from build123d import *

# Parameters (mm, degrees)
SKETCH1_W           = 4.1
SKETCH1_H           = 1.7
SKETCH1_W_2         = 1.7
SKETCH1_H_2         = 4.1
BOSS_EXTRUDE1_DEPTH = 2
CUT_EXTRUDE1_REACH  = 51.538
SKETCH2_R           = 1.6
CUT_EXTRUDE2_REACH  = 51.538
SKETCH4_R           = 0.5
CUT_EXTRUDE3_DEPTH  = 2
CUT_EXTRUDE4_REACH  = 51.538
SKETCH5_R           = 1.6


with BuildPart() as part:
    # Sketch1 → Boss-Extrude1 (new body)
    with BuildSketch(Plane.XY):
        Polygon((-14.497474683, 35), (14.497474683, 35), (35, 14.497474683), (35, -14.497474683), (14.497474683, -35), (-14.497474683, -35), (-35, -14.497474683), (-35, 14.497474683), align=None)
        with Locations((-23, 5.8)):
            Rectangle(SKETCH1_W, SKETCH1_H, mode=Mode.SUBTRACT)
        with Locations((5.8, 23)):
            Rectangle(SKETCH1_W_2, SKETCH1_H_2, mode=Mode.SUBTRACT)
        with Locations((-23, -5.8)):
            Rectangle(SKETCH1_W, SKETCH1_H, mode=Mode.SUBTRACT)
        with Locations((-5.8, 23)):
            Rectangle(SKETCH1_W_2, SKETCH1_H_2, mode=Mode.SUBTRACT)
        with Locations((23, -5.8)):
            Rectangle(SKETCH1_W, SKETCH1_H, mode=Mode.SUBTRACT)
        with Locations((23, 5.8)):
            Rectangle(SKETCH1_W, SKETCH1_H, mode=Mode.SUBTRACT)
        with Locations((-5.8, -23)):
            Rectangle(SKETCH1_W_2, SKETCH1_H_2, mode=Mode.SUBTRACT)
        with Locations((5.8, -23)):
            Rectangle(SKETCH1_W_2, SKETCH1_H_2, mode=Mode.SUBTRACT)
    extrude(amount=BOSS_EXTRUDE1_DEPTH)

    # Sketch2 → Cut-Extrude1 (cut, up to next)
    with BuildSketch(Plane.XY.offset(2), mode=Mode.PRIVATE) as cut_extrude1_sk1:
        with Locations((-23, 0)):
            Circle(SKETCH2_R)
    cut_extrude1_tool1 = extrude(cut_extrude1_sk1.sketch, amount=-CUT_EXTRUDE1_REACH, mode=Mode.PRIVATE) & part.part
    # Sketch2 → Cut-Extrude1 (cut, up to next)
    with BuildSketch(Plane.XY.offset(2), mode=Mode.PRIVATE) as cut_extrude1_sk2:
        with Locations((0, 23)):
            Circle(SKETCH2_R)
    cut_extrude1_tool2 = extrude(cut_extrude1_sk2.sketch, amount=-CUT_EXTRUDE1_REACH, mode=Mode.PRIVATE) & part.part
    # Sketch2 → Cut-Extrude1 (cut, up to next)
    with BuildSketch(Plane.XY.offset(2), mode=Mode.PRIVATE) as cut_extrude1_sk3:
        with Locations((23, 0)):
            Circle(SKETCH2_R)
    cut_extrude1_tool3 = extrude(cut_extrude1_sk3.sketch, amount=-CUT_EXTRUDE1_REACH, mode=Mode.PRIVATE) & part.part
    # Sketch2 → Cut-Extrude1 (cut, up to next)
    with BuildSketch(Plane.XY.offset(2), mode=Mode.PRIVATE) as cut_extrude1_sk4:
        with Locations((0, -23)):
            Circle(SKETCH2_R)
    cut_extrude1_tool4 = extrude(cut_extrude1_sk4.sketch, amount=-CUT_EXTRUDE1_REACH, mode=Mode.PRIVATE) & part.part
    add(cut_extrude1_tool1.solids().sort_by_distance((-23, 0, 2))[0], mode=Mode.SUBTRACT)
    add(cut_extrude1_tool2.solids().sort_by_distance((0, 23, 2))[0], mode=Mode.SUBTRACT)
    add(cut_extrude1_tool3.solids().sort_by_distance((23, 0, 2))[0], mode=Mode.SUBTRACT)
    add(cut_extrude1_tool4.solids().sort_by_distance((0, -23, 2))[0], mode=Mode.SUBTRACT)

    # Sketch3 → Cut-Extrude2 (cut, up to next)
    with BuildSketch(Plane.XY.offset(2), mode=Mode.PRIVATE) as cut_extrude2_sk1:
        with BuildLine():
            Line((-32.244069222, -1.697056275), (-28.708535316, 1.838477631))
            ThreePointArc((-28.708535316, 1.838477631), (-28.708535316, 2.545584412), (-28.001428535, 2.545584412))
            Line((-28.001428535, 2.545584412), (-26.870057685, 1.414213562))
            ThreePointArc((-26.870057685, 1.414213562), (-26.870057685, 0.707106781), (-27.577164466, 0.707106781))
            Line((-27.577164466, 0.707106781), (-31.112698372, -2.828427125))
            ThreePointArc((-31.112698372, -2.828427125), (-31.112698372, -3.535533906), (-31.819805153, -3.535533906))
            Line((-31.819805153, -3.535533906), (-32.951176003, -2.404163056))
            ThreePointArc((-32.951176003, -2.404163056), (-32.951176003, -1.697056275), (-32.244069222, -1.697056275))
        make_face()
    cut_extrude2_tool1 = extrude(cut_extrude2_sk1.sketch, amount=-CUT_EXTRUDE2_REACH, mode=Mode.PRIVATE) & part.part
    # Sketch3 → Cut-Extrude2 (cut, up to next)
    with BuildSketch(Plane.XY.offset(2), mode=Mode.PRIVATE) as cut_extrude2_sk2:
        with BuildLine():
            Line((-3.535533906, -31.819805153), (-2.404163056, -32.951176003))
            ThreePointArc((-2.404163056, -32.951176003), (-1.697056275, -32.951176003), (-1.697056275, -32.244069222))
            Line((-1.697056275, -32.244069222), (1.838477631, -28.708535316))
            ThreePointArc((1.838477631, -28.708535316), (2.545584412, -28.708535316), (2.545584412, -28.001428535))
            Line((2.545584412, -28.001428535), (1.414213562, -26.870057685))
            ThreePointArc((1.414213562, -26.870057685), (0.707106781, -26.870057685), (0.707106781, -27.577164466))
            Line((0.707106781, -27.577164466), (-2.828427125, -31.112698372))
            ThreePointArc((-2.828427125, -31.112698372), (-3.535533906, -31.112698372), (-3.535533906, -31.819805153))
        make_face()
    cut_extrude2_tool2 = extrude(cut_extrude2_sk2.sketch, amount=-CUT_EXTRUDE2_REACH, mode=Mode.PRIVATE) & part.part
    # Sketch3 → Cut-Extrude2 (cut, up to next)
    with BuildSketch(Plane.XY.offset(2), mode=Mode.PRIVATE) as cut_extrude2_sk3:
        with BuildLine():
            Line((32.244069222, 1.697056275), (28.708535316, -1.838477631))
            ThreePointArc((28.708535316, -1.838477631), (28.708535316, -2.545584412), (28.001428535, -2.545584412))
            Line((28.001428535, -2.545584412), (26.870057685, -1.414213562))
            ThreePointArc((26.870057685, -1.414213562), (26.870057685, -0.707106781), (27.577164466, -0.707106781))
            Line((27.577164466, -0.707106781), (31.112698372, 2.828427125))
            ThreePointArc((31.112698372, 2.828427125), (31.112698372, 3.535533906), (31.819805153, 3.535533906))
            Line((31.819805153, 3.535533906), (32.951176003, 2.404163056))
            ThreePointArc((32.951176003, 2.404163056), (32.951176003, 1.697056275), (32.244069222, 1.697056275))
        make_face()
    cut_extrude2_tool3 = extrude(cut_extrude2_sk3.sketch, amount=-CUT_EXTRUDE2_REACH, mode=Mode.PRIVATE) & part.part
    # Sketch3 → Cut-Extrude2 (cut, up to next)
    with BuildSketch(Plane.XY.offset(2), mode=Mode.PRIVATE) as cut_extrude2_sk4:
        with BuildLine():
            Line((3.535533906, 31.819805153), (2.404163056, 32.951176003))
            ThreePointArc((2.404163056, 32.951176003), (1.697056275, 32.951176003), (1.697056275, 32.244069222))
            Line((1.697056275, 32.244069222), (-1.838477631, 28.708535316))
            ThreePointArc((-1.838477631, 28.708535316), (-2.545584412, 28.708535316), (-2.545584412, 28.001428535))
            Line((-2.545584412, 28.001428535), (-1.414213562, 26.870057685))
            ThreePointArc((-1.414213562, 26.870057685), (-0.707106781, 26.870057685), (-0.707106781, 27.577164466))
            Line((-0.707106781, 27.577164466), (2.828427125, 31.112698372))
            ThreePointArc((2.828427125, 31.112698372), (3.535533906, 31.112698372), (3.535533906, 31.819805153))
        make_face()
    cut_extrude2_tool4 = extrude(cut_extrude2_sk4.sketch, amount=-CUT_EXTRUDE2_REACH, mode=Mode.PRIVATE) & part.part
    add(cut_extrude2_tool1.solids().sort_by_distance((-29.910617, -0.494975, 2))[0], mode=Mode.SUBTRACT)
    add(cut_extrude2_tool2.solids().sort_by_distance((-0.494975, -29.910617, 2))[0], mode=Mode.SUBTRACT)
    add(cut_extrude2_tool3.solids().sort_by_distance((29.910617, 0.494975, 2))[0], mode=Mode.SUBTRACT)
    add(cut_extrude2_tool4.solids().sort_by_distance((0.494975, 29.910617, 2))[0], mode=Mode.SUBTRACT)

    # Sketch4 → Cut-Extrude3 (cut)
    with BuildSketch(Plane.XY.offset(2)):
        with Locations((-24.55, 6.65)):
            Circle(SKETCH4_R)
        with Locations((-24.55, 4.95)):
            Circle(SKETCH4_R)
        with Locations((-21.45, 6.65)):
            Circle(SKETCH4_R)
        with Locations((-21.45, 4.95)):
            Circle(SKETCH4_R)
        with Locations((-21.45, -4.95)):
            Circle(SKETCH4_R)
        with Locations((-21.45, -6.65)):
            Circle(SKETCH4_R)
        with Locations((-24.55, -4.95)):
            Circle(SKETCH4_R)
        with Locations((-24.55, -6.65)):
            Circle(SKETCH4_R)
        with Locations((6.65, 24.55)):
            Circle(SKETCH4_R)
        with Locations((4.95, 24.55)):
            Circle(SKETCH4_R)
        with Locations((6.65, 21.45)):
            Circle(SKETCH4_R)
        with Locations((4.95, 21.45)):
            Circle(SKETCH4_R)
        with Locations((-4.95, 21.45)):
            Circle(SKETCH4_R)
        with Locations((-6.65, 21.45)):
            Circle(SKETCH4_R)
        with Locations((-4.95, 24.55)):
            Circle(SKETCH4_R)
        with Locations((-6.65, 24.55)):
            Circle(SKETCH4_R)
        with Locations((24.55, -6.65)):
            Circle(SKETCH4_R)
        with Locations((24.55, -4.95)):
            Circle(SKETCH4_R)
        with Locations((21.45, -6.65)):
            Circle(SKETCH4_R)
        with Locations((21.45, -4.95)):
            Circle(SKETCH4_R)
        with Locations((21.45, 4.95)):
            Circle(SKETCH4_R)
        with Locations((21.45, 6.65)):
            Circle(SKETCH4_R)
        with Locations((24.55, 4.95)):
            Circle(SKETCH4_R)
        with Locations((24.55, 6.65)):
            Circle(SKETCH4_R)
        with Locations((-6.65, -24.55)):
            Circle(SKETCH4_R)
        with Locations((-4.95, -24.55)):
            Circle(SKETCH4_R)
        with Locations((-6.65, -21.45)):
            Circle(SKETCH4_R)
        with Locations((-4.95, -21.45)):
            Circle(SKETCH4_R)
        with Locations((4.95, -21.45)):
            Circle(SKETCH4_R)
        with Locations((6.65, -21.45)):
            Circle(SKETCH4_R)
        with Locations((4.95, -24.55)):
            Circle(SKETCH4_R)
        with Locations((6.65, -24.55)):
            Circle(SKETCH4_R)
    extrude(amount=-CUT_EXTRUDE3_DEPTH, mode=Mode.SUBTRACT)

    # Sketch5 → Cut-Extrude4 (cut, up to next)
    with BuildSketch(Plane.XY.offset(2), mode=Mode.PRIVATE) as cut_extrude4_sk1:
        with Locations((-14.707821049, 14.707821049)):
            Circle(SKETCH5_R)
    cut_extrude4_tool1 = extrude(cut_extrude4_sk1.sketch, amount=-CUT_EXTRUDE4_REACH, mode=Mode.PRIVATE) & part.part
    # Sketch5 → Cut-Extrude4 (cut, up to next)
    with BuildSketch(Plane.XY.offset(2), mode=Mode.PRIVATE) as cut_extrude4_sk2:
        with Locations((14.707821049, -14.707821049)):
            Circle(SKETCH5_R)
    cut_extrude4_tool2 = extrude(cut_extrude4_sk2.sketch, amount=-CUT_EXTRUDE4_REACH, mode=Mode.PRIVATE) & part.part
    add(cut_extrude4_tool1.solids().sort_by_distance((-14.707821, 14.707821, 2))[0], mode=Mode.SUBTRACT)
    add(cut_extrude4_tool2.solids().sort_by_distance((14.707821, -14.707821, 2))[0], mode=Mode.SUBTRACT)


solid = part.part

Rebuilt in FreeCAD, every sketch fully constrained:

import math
import FreeCAD as App
import Part
import Sketcher
Q = App.Units.Quantity


def add_polygon(sketch, points):
    """Adds a closed chain of lines whose ends are joined by coincident constraints."""
    first, n = sketch.GeometryCount, len(points)
    for a, b in zip(points, points[1:] + points[:1]):
        sketch.addGeometry(Part.LineSegment(App.Vector(*a, 0), App.Vector(*b, 0)), False)
    for i in range(n):
        sketch.addConstraint(Sketcher.Constraint("Coincident", first + i, 2, first + (i + 1) % n, 1))

doc = App.newDocument("Part")
params = doc.addObject("Spreadsheet::Sheet", "Params")
for row, (alias, value) in enumerate([
    ("sketch1_width", "1.7 mm"),
    ("sketch1_width2", "4.1 mm"),
    ("pad1_length", "2 mm"),
    ("sketch2_diameter", "3.2 mm"),
    ("sketch3_diameter", "3.2 mm"),
    ("sketch4_diameter", "3.2 mm"),
    ("sketch5_diameter", "3.2 mm"),
    ("sketch6_radius", "0.5 mm"),
    ("sketch6_length", "5 mm"),
    ("sketch6_length2", "1.6 mm"),
    ("sketch7_radius", "0.5 mm"),
    ("sketch7_length", "5 mm"),
    ("sketch7_length2", "1.6 mm"),
    ("sketch8_radius", "0.5 mm"),
    ("sketch8_length", "5 mm"),
    ("sketch8_length2", "1.6 mm"),
    ("sketch9_radius", "0.5 mm"),
    ("sketch9_length", "5 mm"),
    ("sketch9_length2", "1.6 mm"),
    ("sketch10_diameter", "1 mm"),
    ("pocket9_length", "2 mm"),
    ("sketch11_diameter", "3.2 mm"),
    ("sketch12_diameter", "3.2 mm"),
], start=1):
    params.set(f"A{row}", alias)
    params.set(f"B{row}", "=" + value)
    params.setAlias(f"B{row}", alias)

body = doc.addObject("PartDesign::Body", "Body")

sketch1 = body.newObject("Sketcher::SketchObject", "Sketch")
sketch1.AttachmentSupport = (doc.getObject("XY_Plane"), [""])
sketch1.MapMode = "FlatFace"
add_polygon(sketch1, [(14.5, 35), (-14.5, 35), (-35, 14.5), (-35, -14.5), (-14.5, -35), (14.5, -35), (35, -14.5), (35, 14.5)])
add_polygon(sketch1, [(5, -25.1), (5, -20.9), (6.7, -20.9), (6.7, -25.1)])
add_polygon(sketch1, [(20.9, -6.7), (20.9, -5), (25.1, -5), (25.1, -6.7)])
add_polygon(sketch1, [(-6.7, -25.1), (-6.7, -20.9), (-5, -20.9), (-5, -25.1)])
add_polygon(sketch1, [(-25.1, -6.7), (-25.1, -5), (-20.9, -5), (-20.9, -6.7)])
add_polygon(sketch1, [(20.9, 5), (20.9, 6.7), (25.1, 6.7), (25.1, 5)])
add_polygon(sketch1, [(5, 20.9), (5, 25.1), (6.7, 25.1), (6.7, 20.9)])
add_polygon(sketch1, [(-25.1, 5), (-25.1, 6.7), (-20.9, 6.7), (-20.9, 5)])
add_polygon(sketch1, [(-6.7, 20.9), (-6.7, 25.1), (-5, 25.1), (-5, 20.9)])
sketch1.addConstraint([
    Sketcher.Constraint("Horizontal", 0),
    Sketcher.Constraint("Vertical", 2),
    Sketcher.Constraint("Horizontal", 4),
    Sketcher.Constraint("Vertical", 6),
    Sketcher.Constraint("Vertical", 8),
    Sketcher.Constraint("Horizontal", 9),
    Sketcher.Constraint("Vertical", 10),
    Sketcher.Constraint("Horizontal", 11),
    Sketcher.Constraint("Vertical", 12),
    Sketcher.Constraint("Horizontal", 13),
    Sketcher.Constraint("Vertical", 14),
    Sketcher.Constraint("Horizontal", 15),
    Sketcher.Constraint("Vertical", 16),
    Sketcher.Constraint("Horizontal", 17),
    Sketcher.Constraint("Vertical", 18),
    Sketcher.Constraint("Horizontal", 19),
    Sketcher.Constraint("Vertical", 20),
    Sketcher.Constraint("Horizontal", 21),
    Sketcher.Constraint("Vertical", 22),
    Sketcher.Constraint("Horizontal", 23),
    Sketcher.Constraint("Vertical", 24),
    Sketcher.Constraint("Horizontal", 25),
    Sketcher.Constraint("Vertical", 26),
    Sketcher.Constraint("Horizontal", 27),
    Sketcher.Constraint("Vertical", 28),
    Sketcher.Constraint("Horizontal", 29),
    Sketcher.Constraint("Vertical", 30),
    Sketcher.Constraint("Horizontal", 31),
    Sketcher.Constraint("Vertical", 32),
    Sketcher.Constraint("Horizontal", 33),
    Sketcher.Constraint("Vertical", 34),
    Sketcher.Constraint("Horizontal", 35),
    Sketcher.Constraint("Vertical", 36),
    Sketcher.Constraint("Horizontal", 37),
    Sketcher.Constraint("Vertical", 38),
    Sketcher.Constraint("Horizontal", 39),
    Sketcher.Constraint("Symmetric", 0, 2, 4, 2, -1, 1),
    Sketcher.Constraint("Symmetric", 1, 2, 5, 2, -1, 1),
    Sketcher.Constraint("Symmetric", 22, 2, 24, 2, -1, 1),
    Sketcher.Constraint("Symmetric", 20, 2, 26, 2, -1, 1),
    Sketcher.Constraint("Symmetric", 18, 2, 28, 2, -1, 1),
    Sketcher.Constraint("Symmetric", 16, 2, 30, 2, -1, 1),
    Sketcher.Constraint("Symmetric", 14, 2, 32, 2, -1, 1),
    Sketcher.Constraint("Symmetric", 12, 2, 34, 2, -1, 1),
    Sketcher.Constraint("Symmetric", 10, 2, 36, 2, -1, 1),
    Sketcher.Constraint("Symmetric", 8, 2, 38, 2, -1, 1),
    Sketcher.Constraint("Symmetric", 9, 2, 16, 2, -2),
    Sketcher.Constraint("Symmetric", 11, 2, 18, 2, -2),
    Sketcher.Constraint("Symmetric", 13, 2, 20, 2, -2),
    Sketcher.Constraint("Symmetric", 15, 2, 22, 2, -2),
    Sketcher.Constraint("Perpendicular", 1, 3),
    Sketcher.Constraint("Perpendicular", 5, 7),
    Sketcher.Constraint("Horizontal", 2, 2, 5, 2),
    Sketcher.Constraint("Horizontal", 1, 2, 6, 2),
    Sketcher.Constraint("Vertical", 0, 2, 3, 2),
    Sketcher.Constraint("Equal", 4, 2),
    Sketcher.Constraint("Equal", 35, 8),
    Sketcher.Constraint("Equal", 39, 12),
    Sketcher.Constraint("DistanceX", 9, 1, 9, 2, 1.7),
    Sketcher.Constraint("DistanceX", 13, 1, 13, 2, 4.1),
    Sketcher.Constraint("DistanceY", -1, 1, 0, 2, 35.0),
    Sketcher.Constraint("DistanceY", 9, 2, 12, 2, 16.0),
    Sketcher.Constraint("DistanceX", 8, 2, 12, 2, 16.0),
    Sketcher.Constraint("DistanceX", 16, 2, 8, 2, 11.6),
    Sketcher.Constraint("DistanceY", 12, 2, 24, 2, 11.6),
    Sketcher.Constraint("DistanceX", 0, 2, 0, 1, 28.994949),
])
sketch1.setExpression("Constraints[98]", "Params.sketch1_width")
sketch1.setExpression("Constraints[99]", "Params.sketch1_width2")
pad1 = body.newObject("PartDesign::Pad", "Pad")
pad1.Profile = sketch1
pad1.setExpression("Length", "Params.pad1_length")

sketch2 = body.newObject("Sketcher::SketchObject", "Sketch001")
sketch2.AttachmentSupport = (doc.getObject("XY_Plane"), [""])
sketch2.MapMode = "FlatFace"
sketch2.AttachmentOffset = App.Placement(App.Vector(0, 0, 2), App.Rotation())
sketch2.addGeometry(Part.Circle(App.Vector(-23, 0, 0), App.Vector(0, 0, 1), 1.6), False)
sketch2.addConstraint([
    Sketcher.Constraint("PointOnObject", 0, 3, -1),
    Sketcher.Constraint("Diameter", 0, 3.2),
    Sketcher.Constraint("DistanceX", 0, 3, -1, 1, 23.0),
])
sketch2.setExpression("Constraints[1]", "Params.sketch2_diameter")
pocket1 = body.newObject("PartDesign::Pocket", "Pocket")
pocket1.Profile = sketch2
pocket1.Type = "UpToFirst"

sketch3 = body.newObject("Sketcher::SketchObject", "Sketch002")
sketch3.AttachmentSupport = (doc.getObject("XY_Plane"), [""])
sketch3.MapMode = "FlatFace"
sketch3.AttachmentOffset = App.Placement(App.Vector(0, 0, 2), App.Rotation())
sketch3.addGeometry(Part.Circle(App.Vector(0, 23, 0), App.Vector(0, 0, 1), 1.6), False)
sketch3.addConstraint([
    Sketcher.Constraint("PointOnObject", 0, 3, -2),
    Sketcher.Constraint("Diameter", 0, 3.2),
    Sketcher.Constraint("DistanceY", -1, 1, 0, 3, 23.0),
])
sketch3.setExpression("Constraints[1]", "Params.sketch3_diameter")
pocket2 = body.newObject("PartDesign::Pocket", "Pocket001")
pocket2.Profile = sketch3
pocket2.Type = "UpToFirst"

sketch4 = body.newObject("Sketcher::SketchObject", "Sketch003")
sketch4.AttachmentSupport = (doc.getObject("XY_Plane"), [""])
sketch4.MapMode = "FlatFace"
sketch4.AttachmentOffset = App.Placement(App.Vector(0, 0, 2), App.Rotation())
sketch4.addGeometry(Part.Circle(App.Vector(23, 0, 0), App.Vector(0, 0, 1), 1.6), False)
sketch4.addConstraint([
    Sketcher.Constraint("PointOnObject", 0, 3, -1),
    Sketcher.Constraint("Diameter", 0, 3.2),
    Sketcher.Constraint("DistanceX", -1, 1, 0, 3, 23.0),
])
sketch4.setExpression("Constraints[1]", "Params.sketch4_diameter")
pocket3 = body.newObject("PartDesign::Pocket", "Pocket002")
pocket3.Profile = sketch4
pocket3.Type = "UpToFirst"

sketch5 = body.newObject("Sketcher::SketchObject", "Sketch004")
sketch5.AttachmentSupport = (doc.getObject("XY_Plane"), [""])
sketch5.MapMode = "FlatFace"
sketch5.AttachmentOffset = App.Placement(App.Vector(0, 0, 2), App.Rotation())
sketch5.addGeometry(Part.Circle(App.Vector(0, -23, 0), App.Vector(0, 0, 1), 1.6), False)
sketch5.addConstraint([
    Sketcher.Constraint("PointOnObject", 0, 3, -2),
    Sketcher.Constraint("Diameter", 0, 3.2),
    Sketcher.Constraint("DistanceY", 0, 3, -1, 1, 23.0),
])
sketch5.setExpression("Constraints[1]", "Params.sketch5_diameter")
pocket4 = body.newObject("PartDesign::Pocket", "Pocket003")
pocket4.Profile = sketch5
pocket4.Type = "UpToFirst"

sketch6 = body.newObject("Sketcher::SketchObject", "Sketch005")
sketch6.AttachmentSupport = (doc.getObject("XY_Plane"), [""])
sketch6.MapMode = "FlatFace"
sketch6.AttachmentOffset = App.Placement(App.Vector(0, 0, 2), App.Rotation())
sketch6.addGeometry([
    Part.LineSegment(App.Vector(-28.7, 1.8, 0), App.Vector(-32.2, -1.7, 0)),
    Part.ArcOfCircle(Part.Circle(App.Vector(-32.6, -2.1, 0), App.Vector(0, 0, 1), 0.5), math.radians(45), math.radians(225)),
    Part.LineSegment(App.Vector(-33, -2.4, 0), App.Vector(-31.8, -3.5, 0)),
    Part.ArcOfCircle(Part.Circle(App.Vector(-31.5, -3.2, 0), App.Vector(0, 0, 1), 0.5), math.radians(-135), math.radians(45)),
    Part.LineSegment(App.Vector(-31.1, -2.8, 0), App.Vector(-27.6, 0.7, 0)),
    Part.ArcOfCircle(Part.Circle(App.Vector(-27.2, 1.1, 0), App.Vector(0, 0, 1), 0.5), math.radians(-135), math.radians(45)),
    Part.LineSegment(App.Vector(-26.9, 1.4, 0), App.Vector(-28, 2.5, 0)),
    Part.ArcOfCircle(Part.Circle(App.Vector(-28.4, 2.2, 0), App.Vector(0, 0, 1), 0.5), math.radians(45), math.radians(225)),
], False)
sketch6.addConstraint([
    Sketcher.Constraint("Coincident", 0, 2, 1, 1),
    Sketcher.Constraint("Tangent", 1, 2, 2, 1),
    Sketcher.Constraint("Tangent", 2, 2, 3, 1),
    Sketcher.Constraint("Coincident", 3, 2, 4, 1),
    Sketcher.Constraint("Coincident", 4, 2, 5, 1),
    Sketcher.Constraint("Tangent", 5, 2, 6, 1),
    Sketcher.Constraint("Tangent", 6, 2, 7, 1),
    Sketcher.Constraint("Coincident", 7, 2, 0, 1),
    Sketcher.Constraint("Equal", 1, 3),
    Sketcher.Constraint("Equal", 3, 5),
    Sketcher.Constraint("Equal", 5, 7),
    Sketcher.Constraint("Perpendicular", 0, 2),
    Sketcher.Constraint("Perpendicular", 2, 4),
    Sketcher.Constraint("Perpendicular", 4, 6),
    Sketcher.Constraint("Equal", 2, 6),
    Sketcher.Constraint("Radius", 1, 0.5),
    Sketcher.Constraint("Angle", 0, Q("-135 deg")),
    Sketcher.Constraint("Distance", 0, 5.0),
    Sketcher.Constraint("Distance", 2, 1.6),
    Sketcher.Constraint("DistanceX", 3, 2, -1, 1, 31.112698),
    Sketcher.Constraint("DistanceY", 1, 3, -1, 1, 2.05061),
    Sketcher.Constraint("DistanceX", 3, 3, -1, 1, 31.466252),
    Sketcher.Constraint("DistanceX", 5, 3, -1, 1, 27.223611),
    Sketcher.Constraint("DistanceX", 0, 2, -1, 1, 32.244069),
])
sketch6.setExpression("Constraints[15]", "Params.sketch6_radius")
sketch6.setExpression("Constraints[17]", "Params.sketch6_length")
sketch6.setExpression("Constraints[18]", "Params.sketch6_length2")
pocket5 = body.newObject("PartDesign::Pocket", "Pocket004")
pocket5.Profile = sketch6
pocket5.Type = "UpToFirst"

sketch7 = body.newObject("Sketcher::SketchObject", "Sketch006")
sketch7.AttachmentSupport = (doc.getObject("XY_Plane"), [""])
sketch7.MapMode = "FlatFace"
sketch7.AttachmentOffset = App.Placement(App.Vector(0, 0, 2), App.Rotation())
sketch7.addGeometry([
    Part.LineSegment(App.Vector(-3.5, -31.8, 0), App.Vector(-2.4, -33, 0)),
    Part.ArcOfCircle(Part.Circle(App.Vector(-2.1, -32.6, 0), App.Vector(0, 0, 1), 0.5), math.radians(-135), math.radians(45)),
    Part.LineSegment(App.Vector(-1.7, -32.2, 0), App.Vector(1.8, -28.7, 0)),
    Part.ArcOfCircle(Part.Circle(App.Vector(2.2, -28.4, 0), App.Vector(0, 0, 1), 0.5), math.radians(-135), math.radians(45)),
    Part.LineSegment(App.Vector(2.5, -28, 0), App.Vector(1.4, -26.9, 0)),
    Part.ArcOfCircle(Part.Circle(App.Vector(1.1, -27.2, 0), App.Vector(0, 0, 1), 0.5), math.radians(45), math.radians(225)),
    Part.LineSegment(App.Vector(0.7, -27.6, 0), App.Vector(-2.8, -31.1, 0)),
    Part.ArcOfCircle(Part.Circle(App.Vector(-3.2, -31.5, 0), App.Vector(0, 0, 1), 0.5), math.radians(45), math.radians(225)),
], False)
sketch7.addConstraint([
    Sketcher.Constraint("Tangent", 0, 2, 1, 1),
    Sketcher.Constraint("Coincident", 1, 2, 2, 1),
    Sketcher.Constraint("Coincident", 2, 2, 3, 1),
    Sketcher.Constraint("Tangent", 3, 2, 4, 1),
    Sketcher.Constraint("Tangent", 4, 2, 5, 1),
    Sketcher.Constraint("Coincident", 5, 2, 6, 1),
    Sketcher.Constraint("Coincident", 6, 2, 7, 1),
    Sketcher.Constraint("Tangent", 7, 2, 0, 1),
    Sketcher.Constraint("Equal", 1, 3),
    Sketcher.Constraint("Equal", 3, 5),
    Sketcher.Constraint("Equal", 5, 7),
    Sketcher.Constraint("Perpendicular", 0, 2),
    Sketcher.Constraint("Perpendicular", 2, 4),
    Sketcher.Constraint("Perpendicular", 4, 6),
    Sketcher.Constraint("Equal", 0, 4),
    Sketcher.Constraint("Radius", 1, 0.5),
    Sketcher.Constraint("Angle", 0, Q("-45 deg")),
    Sketcher.Constraint("Distance", 2, 5.0),
    Sketcher.Constraint("Distance", 0, 1.6),
    Sketcher.Constraint("DistanceY", 6, 2, -1, 1, 31.112698),
    Sketcher.Constraint("DistanceX", 1, 3, -1, 1, 2.05061),
    Sketcher.Constraint("DistanceX", -1, 1, 3, 3, 2.192031),
    Sketcher.Constraint("DistanceY", 3, 3, -1, 1, 28.354982),
    Sketcher.Constraint("DistanceY", 1, 2, -1, 1, 32.244069),
])
sketch7.setExpression("Constraints[15]", "Params.sketch7_radius")
sketch7.setExpression("Constraints[17]", "Params.sketch7_length")
sketch7.setExpression("Constraints[18]", "Params.sketch7_length2")
pocket6 = body.newObject("PartDesign::Pocket", "Pocket005")
pocket6.Profile = sketch7
pocket6.Type = "UpToFirst"

sketch8 = body.newObject("Sketcher::SketchObject", "Sketch007")
sketch8.AttachmentSupport = (doc.getObject("XY_Plane"), [""])
sketch8.MapMode = "FlatFace"
sketch8.AttachmentOffset = App.Placement(App.Vector(0, 0, 2), App.Rotation())
sketch8.addGeometry([
    Part.LineSegment(App.Vector(28.7, -1.8, 0), App.Vector(32.2, 1.7, 0)),
    Part.ArcOfCircle(Part.Circle(App.Vector(32.6, 2.1, 0), App.Vector(0, 0, 1), 0.5), math.radians(-135), math.radians(45)),
    Part.LineSegment(App.Vector(33, 2.4, 0), App.Vector(31.8, 3.5, 0)),
    Part.ArcOfCircle(Part.Circle(App.Vector(31.5, 3.2, 0), App.Vector(0, 0, 1), 0.5), math.radians(45), math.radians(225)),
    Part.LineSegment(App.Vector(31.1, 2.8, 0), App.Vector(27.6, -0.7, 0)),
    Part.ArcOfCircle(Part.Circle(App.Vector(27.2, -1.1, 0), App.Vector(0, 0, 1), 0.5), math.radians(45), math.radians(225)),
    Part.LineSegment(App.Vector(26.9, -1.4, 0), App.Vector(28, -2.5, 0)),
    Part.ArcOfCircle(Part.Circle(App.Vector(28.4, -2.2, 0), App.Vector(0, 0, 1), 0.5), math.radians(-135), math.radians(45)),
], False)
sketch8.addConstraint([
    Sketcher.Constraint("Coincident", 0, 2, 1, 1),
    Sketcher.Constraint("Tangent", 1, 2, 2, 1),
    Sketcher.Constraint("Tangent", 2, 2, 3, 1),
    Sketcher.Constraint("Coincident", 3, 2, 4, 1),
    Sketcher.Constraint("Coincident", 4, 2, 5, 1),
    Sketcher.Constraint("Tangent", 5, 2, 6, 1),
    Sketcher.Constraint("Tangent", 6, 2, 7, 1),
    Sketcher.Constraint("Coincident", 7, 2, 0, 1),
    Sketcher.Constraint("Equal", 1, 3),
    Sketcher.Constraint("Equal", 3, 5),
    Sketcher.Constraint("Equal", 5, 7),
    Sketcher.Constraint("Perpendicular", 0, 2),
    Sketcher.Constraint("Perpendicular", 2, 4),
    Sketcher.Constraint("Perpendicular", 4, 6),
    Sketcher.Constraint("Equal", 2, 6),
    Sketcher.Constraint("Radius", 1, 0.5),
    Sketcher.Constraint("Angle", 0, Q("45 deg")),
    Sketcher.Constraint("Distance", 0, 5.0),
    Sketcher.Constraint("Distance", 2, 1.6),
    Sketcher.Constraint("DistanceX", -1, 1, 3, 2, 31.112698),
    Sketcher.Constraint("DistanceY", -1, 1, 1, 3, 2.05061),
    Sketcher.Constraint("DistanceX", -1, 1, 3, 3, 31.466252),
    Sketcher.Constraint("DistanceX", -1, 1, 5, 3, 27.223611),
    Sketcher.Constraint("DistanceX", -1, 1, 0, 2, 32.244069),
])
sketch8.setExpression("Constraints[15]", "Params.sketch8_radius")
sketch8.setExpression("Constraints[17]", "Params.sketch8_length")
sketch8.setExpression("Constraints[18]", "Params.sketch8_length2")
pocket7 = body.newObject("PartDesign::Pocket", "Pocket006")
pocket7.Profile = sketch8
pocket7.Type = "UpToFirst"

sketch9 = body.newObject("Sketcher::SketchObject", "Sketch008")
sketch9.AttachmentSupport = (doc.getObject("XY_Plane"), [""])
sketch9.MapMode = "FlatFace"
sketch9.AttachmentOffset = App.Placement(App.Vector(0, 0, 2), App.Rotation())
sketch9.addGeometry([
    Part.LineSegment(App.Vector(3.5, 31.8, 0), App.Vector(2.4, 33, 0)),
    Part.ArcOfCircle(Part.Circle(App.Vector(2.1, 32.6, 0), App.Vector(0, 0, 1), 0.5), math.radians(45), math.radians(225)),
    Part.LineSegment(App.Vector(1.7, 32.2, 0), App.Vector(-1.8, 28.7, 0)),
    Part.ArcOfCircle(Part.Circle(App.Vector(-2.2, 28.4, 0), App.Vector(0, 0, 1), 0.5), math.radians(45), math.radians(225)),
    Part.LineSegment(App.Vector(-2.5, 28, 0), App.Vector(-1.4, 26.9, 0)),
    Part.ArcOfCircle(Part.Circle(App.Vector(-1.1, 27.2, 0), App.Vector(0, 0, 1), 0.5), math.radians(-135), math.radians(45)),
    Part.LineSegment(App.Vector(-0.7, 27.6, 0), App.Vector(2.8, 31.1, 0)),
    Part.ArcOfCircle(Part.Circle(App.Vector(3.2, 31.5, 0), App.Vector(0, 0, 1), 0.5), math.radians(-135), math.radians(45)),
], False)
sketch9.addConstraint([
    Sketcher.Constraint("Tangent", 0, 2, 1, 1),
    Sketcher.Constraint("Coincident", 1, 2, 2, 1),
    Sketcher.Constraint("Coincident", 2, 2, 3, 1),
    Sketcher.Constraint("Tangent", 3, 2, 4, 1),
    Sketcher.Constraint("Tangent", 4, 2, 5, 1),
    Sketcher.Constraint("Coincident", 5, 2, 6, 1),
    Sketcher.Constraint("Coincident", 6, 2, 7, 1),
    Sketcher.Constraint("Tangent", 7, 2, 0, 1),
    Sketcher.Constraint("Equal", 1, 3),
    Sketcher.Constraint("Equal", 3, 5),
    Sketcher.Constraint("Equal", 5, 7),
    Sketcher.Constraint("Perpendicular", 0, 2),
    Sketcher.Constraint("Perpendicular", 2, 4),
    Sketcher.Constraint("Perpendicular", 4, 6),
    Sketcher.Constraint("Equal", 0, 4),
    Sketcher.Constraint("Radius", 1, 0.5),
    Sketcher.Constraint("Angle", 0, Q("135 deg")),
    Sketcher.Constraint("Distance", 2, 5.0),
    Sketcher.Constraint("Distance", 0, 1.6),
    Sketcher.Constraint("DistanceY", -1, 1, 6, 2, 31.112698),
    Sketcher.Constraint("DistanceX", -1, 1, 1, 3, 2.05061),
    Sketcher.Constraint("DistanceX", 3, 3, -1, 1, 2.192031),
    Sketcher.Constraint("DistanceY", -1, 1, 3, 3, 28.354982),
    Sketcher.Constraint("DistanceY", -1, 1, 1, 2, 32.244069),
])
sketch9.setExpression("Constraints[15]", "Params.sketch9_radius")
sketch9.setExpression("Constraints[17]", "Params.sketch9_length")
sketch9.setExpression("Constraints[18]", "Params.sketch9_length2")
pocket8 = body.newObject("PartDesign::Pocket", "Pocket007")
pocket8.Profile = sketch9
pocket8.Type = "UpToFirst"

sketch10 = body.newObject("Sketcher::SketchObject", "Sketch009")
sketch10.AttachmentSupport = (doc.getObject("XY_Plane"), [""])
sketch10.MapMode = "FlatFace"
sketch10.AttachmentOffset = App.Placement(App.Vector(0, 0, 2), App.Rotation())
sketch10.addGeometry([
    Part.Circle(App.Vector(-24.6, 6.7, 0), App.Vector(0, 0, 1), 0.5),
    Part.Circle(App.Vector(-24.6, 5, 0), App.Vector(0, 0, 1), 0.5),
    Part.Circle(App.Vector(-21.4, 6.7, 0), App.Vector(0, 0, 1), 0.5),
    Part.Circle(App.Vector(-21.4, 5, 0), App.Vector(0, 0, 1), 0.5),
    Part.Circle(App.Vector(-21.4, -5, 0), App.Vector(0, 0, 1), 0.5),
    Part.Circle(App.Vector(-21.4, -6.7, 0), App.Vector(0, 0, 1), 0.5),
    Part.Circle(App.Vector(-24.6, -5, 0), App.Vector(0, 0, 1), 0.5),
    Part.Circle(App.Vector(-24.6, -6.7, 0), App.Vector(0, 0, 1), 0.5),
    Part.Circle(App.Vector(6.7, 24.6, 0), App.Vector(0, 0, 1), 0.5),
    Part.Circle(App.Vector(5, 24.6, 0), App.Vector(0, 0, 1), 0.5),
    Part.Circle(App.Vector(6.7, 21.4, 0), App.Vector(0, 0, 1), 0.5),
    Part.Circle(App.Vector(5, 21.4, 0), App.Vector(0, 0, 1), 0.5),
    Part.Circle(App.Vector(-5, 21.4, 0), App.Vector(0, 0, 1), 0.5),
    Part.Circle(App.Vector(-6.7, 21.4, 0), App.Vector(0, 0, 1), 0.5),
    Part.Circle(App.Vector(-5, 24.6, 0), App.Vector(0, 0, 1), 0.5),
    Part.Circle(App.Vector(-6.7, 24.6, 0), App.Vector(0, 0, 1), 0.5),
    Part.Circle(App.Vector(24.6, -6.7, 0), App.Vector(0, 0, 1), 0.5),
    Part.Circle(App.Vector(24.6, -5, 0), App.Vector(0, 0, 1), 0.5),
    Part.Circle(App.Vector(21.4, -6.7, 0), App.Vector(0, 0, 1), 0.5),
    Part.Circle(App.Vector(21.4, -5, 0), App.Vector(0, 0, 1), 0.5),
    Part.Circle(App.Vector(21.4, 5, 0), App.Vector(0, 0, 1), 0.5),
    Part.Circle(App.Vector(21.4, 6.7, 0), App.Vector(0, 0, 1), 0.5),
    Part.Circle(App.Vector(24.6, 5, 0), App.Vector(0, 0, 1), 0.5),
    Part.Circle(App.Vector(24.6, 6.7, 0), App.Vector(0, 0, 1), 0.5),
    Part.Circle(App.Vector(-6.7, -24.6, 0), App.Vector(0, 0, 1), 0.5),
    Part.Circle(App.Vector(-5, -24.6, 0), App.Vector(0, 0, 1), 0.5),
    Part.Circle(App.Vector(-6.7, -21.4, 0), App.Vector(0, 0, 1), 0.5),
    Part.Circle(App.Vector(-5, -21.4, 0), App.Vector(0, 0, 1), 0.5),
    Part.Circle(App.Vector(5, -21.4, 0), App.Vector(0, 0, 1), 0.5),
    Part.Circle(App.Vector(6.7, -21.4, 0), App.Vector(0, 0, 1), 0.5),
    Part.Circle(App.Vector(5, -24.6, 0), App.Vector(0, 0, 1), 0.5),
    Part.Circle(App.Vector(6.7, -24.6, 0), App.Vector(0, 0, 1), 0.5),
], False)
sketch10.addConstraint([
    Sketcher.Constraint("Equal", 0, 1),
    Sketcher.Constraint("Equal", 1, 2),
    Sketcher.Constraint("Equal", 2, 3),
    Sketcher.Constraint("Equal", 3, 4),
    Sketcher.Constraint("Equal", 4, 5),
    Sketcher.Constraint("Equal", 5, 6),
    Sketcher.Constraint("Equal", 6, 7),
    Sketcher.Constraint("Equal", 7, 8),
    Sketcher.Constraint("Equal", 8, 9),
    Sketcher.Constraint("Equal", 9, 10),
    Sketcher.Constraint("Equal", 10, 11),
    Sketcher.Constraint("Equal", 11, 12),
    Sketcher.Constraint("Equal", 12, 13),
    Sketcher.Constraint("Equal", 13, 14),
    Sketcher.Constraint("Equal", 14, 15),
    Sketcher.Constraint("Equal", 15, 16),
    Sketcher.Constraint("Equal", 16, 17),
    Sketcher.Constraint("Equal", 17, 18),
    Sketcher.Constraint("Equal", 18, 19),
    Sketcher.Constraint("Equal", 19, 20),
    Sketcher.Constraint("Equal", 20, 21),
    Sketcher.Constraint("Equal", 21, 22),
    Sketcher.Constraint("Equal", 22, 23),
    Sketcher.Constraint("Equal", 23, 24),
    Sketcher.Constraint("Equal", 24, 25),
    Sketcher.Constraint("Equal", 25, 26),
    Sketcher.Constraint("Equal", 26, 27),
    Sketcher.Constraint("Equal", 27, 28),
    Sketcher.Constraint("Equal", 28, 29),
    Sketcher.Constraint("Equal", 29, 30),
    Sketcher.Constraint("Equal", 30, 31),
    Sketcher.Constraint("Symmetric", 0, 3, 16, 3, -1, 1),
    Sketcher.Constraint("Symmetric", 1, 3, 17, 3, -1, 1),
    Sketcher.Constraint("Symmetric", 2, 3, 18, 3, -1, 1),
    Sketcher.Constraint("Symmetric", 3, 3, 19, 3, -1, 1),
    Sketcher.Constraint("Symmetric", 4, 3, 20, 3, -1, 1),
    Sketcher.Constraint("Symmetric", 5, 3, 21, 3, -1, 1),
    Sketcher.Constraint("Symmetric", 6, 3, 22, 3, -1, 1),
    Sketcher.Constraint("Symmetric", 7, 3, 23, 3, -1, 1),
    Sketcher.Constraint("Symmetric", 8, 3, 24, 3, -1, 1),
    Sketcher.Constraint("Symmetric", 9, 3, 25, 3, -1, 1),
    Sketcher.Constraint("Symmetric", 10, 3, 26, 3, -1, 1),
    Sketcher.Constraint("Symmetric", 11, 3, 27, 3, -1, 1),
    Sketcher.Constraint("Symmetric", 12, 3, 28, 3, -1, 1),
    Sketcher.Constraint("Symmetric", 13, 3, 29, 3, -1, 1),
    Sketcher.Constraint("Symmetric", 14, 3, 30, 3, -1, 1),
    Sketcher.Constraint("Symmetric", 15, 3, 31, 3, -1, 1),
    Sketcher.Constraint("Symmetric", 11, 3, 12, 3, -2),
    Sketcher.Constraint("Symmetric", 10, 3, 13, 3, -2),
    Sketcher.Constraint("Symmetric", 9, 3, 14, 3, -2),
    Sketcher.Constraint("Symmetric", 8, 3, 15, 3, -2),
    Sketcher.Constraint("Symmetric", 7, 3, 16, 3, -2),
    Sketcher.Constraint("Symmetric", 6, 3, 17, 3, -2),
    Sketcher.Constraint("Symmetric", 5, 3, 18, 3, -2),
    Sketcher.Constraint("Symmetric", 4, 3, 19, 3, -2),
    Sketcher.Constraint("Horizontal", 0, 3, 2, 3),
    Sketcher.Constraint("Horizontal", 1, 3, 3, 3),
    Sketcher.Constraint("Horizontal", 8, 3, 9, 3),
    Sketcher.Constraint("Horizontal", 10, 3, 11, 3),
    Sketcher.Constraint("Vertical", 0, 3, 1, 3),
    Sketcher.Constraint("Vertical", 2, 3, 3, 3),
    Sketcher.Constraint("Vertical", 8, 3, 10, 3),
    Sketcher.Constraint("Vertical", 9, 3, 11, 3),
    Sketcher.Constraint("Diameter", 0, 1.0),
    Sketcher.Constraint("DistanceY", 1, 3, 0, 3, 1.7),
    Sketcher.Constraint("DistanceX", 0, 3, 2, 3, 3.1),
    Sketcher.Constraint("DistanceY", 4, 3, 3, 3, 9.9),
    Sketcher.Constraint("DistanceX", 2, 3, 8, 3, 28.1),
    Sketcher.Constraint("DistanceY", 2, 3, 8, 3, 17.9),
    Sketcher.Constraint("DistanceX", 9, 3, 8, 3, 1.7),
    Sketcher.Constraint("DistanceY", 10, 3, 8, 3, 3.1),
    Sketcher.Constraint("DistanceX", 12, 3, 11, 3, 9.9),
])
sketch10.setExpression("Constraints[63]", "Params.sketch10_diameter")
pocket9 = body.newObject("PartDesign::Pocket", "Pocket008")
pocket9.Profile = sketch10
pocket9.setExpression("Length", "Params.pocket9_length")

sketch11 = body.newObject("Sketcher::SketchObject", "Sketch010")
sketch11.AttachmentSupport = (doc.getObject("XY_Plane"), [""])
sketch11.MapMode = "FlatFace"
sketch11.AttachmentOffset = App.Placement(App.Vector(0, 0, 2), App.Rotation())
sketch11.addGeometry(Part.Circle(App.Vector(-14.7, 14.7, 0), App.Vector(0, 0, 1), 1.6), False)
sketch11.addConstraint([
    Sketcher.Constraint("Diameter", 0, 3.2),
    Sketcher.Constraint("DistanceX", 0, 3, -1, 1, 14.707821),
    Sketcher.Constraint("DistanceY", -1, 1, 0, 3, 14.707821),
])
sketch11.setExpression("Constraints[0]", "Params.sketch11_diameter")
pocket10 = body.newObject("PartDesign::Pocket", "Pocket009")
pocket10.Profile = sketch11
pocket10.Type = "UpToFirst"

sketch12 = body.newObject("Sketcher::SketchObject", "Sketch011")
sketch12.AttachmentSupport = (doc.getObject("XY_Plane"), [""])
sketch12.MapMode = "FlatFace"
sketch12.AttachmentOffset = App.Placement(App.Vector(0, 0, 2), App.Rotation())
sketch12.addGeometry(Part.Circle(App.Vector(14.7, -14.7, 0), App.Vector(0, 0, 1), 1.6), False)
sketch12.addConstraint([
    Sketcher.Constraint("Diameter", 0, 3.2),
    Sketcher.Constraint("DistanceX", -1, 1, 0, 3, 14.707821),
    Sketcher.Constraint("DistanceY", 0, 3, -1, 1, 14.707821),
])
sketch12.setExpression("Constraints[0]", "Params.sketch12_diameter")
pocket11 = body.newObject("PartDesign::Pocket", "Pocket010")
pocket11.Profile = sketch12
pocket11.Type = "UpToFirst"

doc.recompute()
